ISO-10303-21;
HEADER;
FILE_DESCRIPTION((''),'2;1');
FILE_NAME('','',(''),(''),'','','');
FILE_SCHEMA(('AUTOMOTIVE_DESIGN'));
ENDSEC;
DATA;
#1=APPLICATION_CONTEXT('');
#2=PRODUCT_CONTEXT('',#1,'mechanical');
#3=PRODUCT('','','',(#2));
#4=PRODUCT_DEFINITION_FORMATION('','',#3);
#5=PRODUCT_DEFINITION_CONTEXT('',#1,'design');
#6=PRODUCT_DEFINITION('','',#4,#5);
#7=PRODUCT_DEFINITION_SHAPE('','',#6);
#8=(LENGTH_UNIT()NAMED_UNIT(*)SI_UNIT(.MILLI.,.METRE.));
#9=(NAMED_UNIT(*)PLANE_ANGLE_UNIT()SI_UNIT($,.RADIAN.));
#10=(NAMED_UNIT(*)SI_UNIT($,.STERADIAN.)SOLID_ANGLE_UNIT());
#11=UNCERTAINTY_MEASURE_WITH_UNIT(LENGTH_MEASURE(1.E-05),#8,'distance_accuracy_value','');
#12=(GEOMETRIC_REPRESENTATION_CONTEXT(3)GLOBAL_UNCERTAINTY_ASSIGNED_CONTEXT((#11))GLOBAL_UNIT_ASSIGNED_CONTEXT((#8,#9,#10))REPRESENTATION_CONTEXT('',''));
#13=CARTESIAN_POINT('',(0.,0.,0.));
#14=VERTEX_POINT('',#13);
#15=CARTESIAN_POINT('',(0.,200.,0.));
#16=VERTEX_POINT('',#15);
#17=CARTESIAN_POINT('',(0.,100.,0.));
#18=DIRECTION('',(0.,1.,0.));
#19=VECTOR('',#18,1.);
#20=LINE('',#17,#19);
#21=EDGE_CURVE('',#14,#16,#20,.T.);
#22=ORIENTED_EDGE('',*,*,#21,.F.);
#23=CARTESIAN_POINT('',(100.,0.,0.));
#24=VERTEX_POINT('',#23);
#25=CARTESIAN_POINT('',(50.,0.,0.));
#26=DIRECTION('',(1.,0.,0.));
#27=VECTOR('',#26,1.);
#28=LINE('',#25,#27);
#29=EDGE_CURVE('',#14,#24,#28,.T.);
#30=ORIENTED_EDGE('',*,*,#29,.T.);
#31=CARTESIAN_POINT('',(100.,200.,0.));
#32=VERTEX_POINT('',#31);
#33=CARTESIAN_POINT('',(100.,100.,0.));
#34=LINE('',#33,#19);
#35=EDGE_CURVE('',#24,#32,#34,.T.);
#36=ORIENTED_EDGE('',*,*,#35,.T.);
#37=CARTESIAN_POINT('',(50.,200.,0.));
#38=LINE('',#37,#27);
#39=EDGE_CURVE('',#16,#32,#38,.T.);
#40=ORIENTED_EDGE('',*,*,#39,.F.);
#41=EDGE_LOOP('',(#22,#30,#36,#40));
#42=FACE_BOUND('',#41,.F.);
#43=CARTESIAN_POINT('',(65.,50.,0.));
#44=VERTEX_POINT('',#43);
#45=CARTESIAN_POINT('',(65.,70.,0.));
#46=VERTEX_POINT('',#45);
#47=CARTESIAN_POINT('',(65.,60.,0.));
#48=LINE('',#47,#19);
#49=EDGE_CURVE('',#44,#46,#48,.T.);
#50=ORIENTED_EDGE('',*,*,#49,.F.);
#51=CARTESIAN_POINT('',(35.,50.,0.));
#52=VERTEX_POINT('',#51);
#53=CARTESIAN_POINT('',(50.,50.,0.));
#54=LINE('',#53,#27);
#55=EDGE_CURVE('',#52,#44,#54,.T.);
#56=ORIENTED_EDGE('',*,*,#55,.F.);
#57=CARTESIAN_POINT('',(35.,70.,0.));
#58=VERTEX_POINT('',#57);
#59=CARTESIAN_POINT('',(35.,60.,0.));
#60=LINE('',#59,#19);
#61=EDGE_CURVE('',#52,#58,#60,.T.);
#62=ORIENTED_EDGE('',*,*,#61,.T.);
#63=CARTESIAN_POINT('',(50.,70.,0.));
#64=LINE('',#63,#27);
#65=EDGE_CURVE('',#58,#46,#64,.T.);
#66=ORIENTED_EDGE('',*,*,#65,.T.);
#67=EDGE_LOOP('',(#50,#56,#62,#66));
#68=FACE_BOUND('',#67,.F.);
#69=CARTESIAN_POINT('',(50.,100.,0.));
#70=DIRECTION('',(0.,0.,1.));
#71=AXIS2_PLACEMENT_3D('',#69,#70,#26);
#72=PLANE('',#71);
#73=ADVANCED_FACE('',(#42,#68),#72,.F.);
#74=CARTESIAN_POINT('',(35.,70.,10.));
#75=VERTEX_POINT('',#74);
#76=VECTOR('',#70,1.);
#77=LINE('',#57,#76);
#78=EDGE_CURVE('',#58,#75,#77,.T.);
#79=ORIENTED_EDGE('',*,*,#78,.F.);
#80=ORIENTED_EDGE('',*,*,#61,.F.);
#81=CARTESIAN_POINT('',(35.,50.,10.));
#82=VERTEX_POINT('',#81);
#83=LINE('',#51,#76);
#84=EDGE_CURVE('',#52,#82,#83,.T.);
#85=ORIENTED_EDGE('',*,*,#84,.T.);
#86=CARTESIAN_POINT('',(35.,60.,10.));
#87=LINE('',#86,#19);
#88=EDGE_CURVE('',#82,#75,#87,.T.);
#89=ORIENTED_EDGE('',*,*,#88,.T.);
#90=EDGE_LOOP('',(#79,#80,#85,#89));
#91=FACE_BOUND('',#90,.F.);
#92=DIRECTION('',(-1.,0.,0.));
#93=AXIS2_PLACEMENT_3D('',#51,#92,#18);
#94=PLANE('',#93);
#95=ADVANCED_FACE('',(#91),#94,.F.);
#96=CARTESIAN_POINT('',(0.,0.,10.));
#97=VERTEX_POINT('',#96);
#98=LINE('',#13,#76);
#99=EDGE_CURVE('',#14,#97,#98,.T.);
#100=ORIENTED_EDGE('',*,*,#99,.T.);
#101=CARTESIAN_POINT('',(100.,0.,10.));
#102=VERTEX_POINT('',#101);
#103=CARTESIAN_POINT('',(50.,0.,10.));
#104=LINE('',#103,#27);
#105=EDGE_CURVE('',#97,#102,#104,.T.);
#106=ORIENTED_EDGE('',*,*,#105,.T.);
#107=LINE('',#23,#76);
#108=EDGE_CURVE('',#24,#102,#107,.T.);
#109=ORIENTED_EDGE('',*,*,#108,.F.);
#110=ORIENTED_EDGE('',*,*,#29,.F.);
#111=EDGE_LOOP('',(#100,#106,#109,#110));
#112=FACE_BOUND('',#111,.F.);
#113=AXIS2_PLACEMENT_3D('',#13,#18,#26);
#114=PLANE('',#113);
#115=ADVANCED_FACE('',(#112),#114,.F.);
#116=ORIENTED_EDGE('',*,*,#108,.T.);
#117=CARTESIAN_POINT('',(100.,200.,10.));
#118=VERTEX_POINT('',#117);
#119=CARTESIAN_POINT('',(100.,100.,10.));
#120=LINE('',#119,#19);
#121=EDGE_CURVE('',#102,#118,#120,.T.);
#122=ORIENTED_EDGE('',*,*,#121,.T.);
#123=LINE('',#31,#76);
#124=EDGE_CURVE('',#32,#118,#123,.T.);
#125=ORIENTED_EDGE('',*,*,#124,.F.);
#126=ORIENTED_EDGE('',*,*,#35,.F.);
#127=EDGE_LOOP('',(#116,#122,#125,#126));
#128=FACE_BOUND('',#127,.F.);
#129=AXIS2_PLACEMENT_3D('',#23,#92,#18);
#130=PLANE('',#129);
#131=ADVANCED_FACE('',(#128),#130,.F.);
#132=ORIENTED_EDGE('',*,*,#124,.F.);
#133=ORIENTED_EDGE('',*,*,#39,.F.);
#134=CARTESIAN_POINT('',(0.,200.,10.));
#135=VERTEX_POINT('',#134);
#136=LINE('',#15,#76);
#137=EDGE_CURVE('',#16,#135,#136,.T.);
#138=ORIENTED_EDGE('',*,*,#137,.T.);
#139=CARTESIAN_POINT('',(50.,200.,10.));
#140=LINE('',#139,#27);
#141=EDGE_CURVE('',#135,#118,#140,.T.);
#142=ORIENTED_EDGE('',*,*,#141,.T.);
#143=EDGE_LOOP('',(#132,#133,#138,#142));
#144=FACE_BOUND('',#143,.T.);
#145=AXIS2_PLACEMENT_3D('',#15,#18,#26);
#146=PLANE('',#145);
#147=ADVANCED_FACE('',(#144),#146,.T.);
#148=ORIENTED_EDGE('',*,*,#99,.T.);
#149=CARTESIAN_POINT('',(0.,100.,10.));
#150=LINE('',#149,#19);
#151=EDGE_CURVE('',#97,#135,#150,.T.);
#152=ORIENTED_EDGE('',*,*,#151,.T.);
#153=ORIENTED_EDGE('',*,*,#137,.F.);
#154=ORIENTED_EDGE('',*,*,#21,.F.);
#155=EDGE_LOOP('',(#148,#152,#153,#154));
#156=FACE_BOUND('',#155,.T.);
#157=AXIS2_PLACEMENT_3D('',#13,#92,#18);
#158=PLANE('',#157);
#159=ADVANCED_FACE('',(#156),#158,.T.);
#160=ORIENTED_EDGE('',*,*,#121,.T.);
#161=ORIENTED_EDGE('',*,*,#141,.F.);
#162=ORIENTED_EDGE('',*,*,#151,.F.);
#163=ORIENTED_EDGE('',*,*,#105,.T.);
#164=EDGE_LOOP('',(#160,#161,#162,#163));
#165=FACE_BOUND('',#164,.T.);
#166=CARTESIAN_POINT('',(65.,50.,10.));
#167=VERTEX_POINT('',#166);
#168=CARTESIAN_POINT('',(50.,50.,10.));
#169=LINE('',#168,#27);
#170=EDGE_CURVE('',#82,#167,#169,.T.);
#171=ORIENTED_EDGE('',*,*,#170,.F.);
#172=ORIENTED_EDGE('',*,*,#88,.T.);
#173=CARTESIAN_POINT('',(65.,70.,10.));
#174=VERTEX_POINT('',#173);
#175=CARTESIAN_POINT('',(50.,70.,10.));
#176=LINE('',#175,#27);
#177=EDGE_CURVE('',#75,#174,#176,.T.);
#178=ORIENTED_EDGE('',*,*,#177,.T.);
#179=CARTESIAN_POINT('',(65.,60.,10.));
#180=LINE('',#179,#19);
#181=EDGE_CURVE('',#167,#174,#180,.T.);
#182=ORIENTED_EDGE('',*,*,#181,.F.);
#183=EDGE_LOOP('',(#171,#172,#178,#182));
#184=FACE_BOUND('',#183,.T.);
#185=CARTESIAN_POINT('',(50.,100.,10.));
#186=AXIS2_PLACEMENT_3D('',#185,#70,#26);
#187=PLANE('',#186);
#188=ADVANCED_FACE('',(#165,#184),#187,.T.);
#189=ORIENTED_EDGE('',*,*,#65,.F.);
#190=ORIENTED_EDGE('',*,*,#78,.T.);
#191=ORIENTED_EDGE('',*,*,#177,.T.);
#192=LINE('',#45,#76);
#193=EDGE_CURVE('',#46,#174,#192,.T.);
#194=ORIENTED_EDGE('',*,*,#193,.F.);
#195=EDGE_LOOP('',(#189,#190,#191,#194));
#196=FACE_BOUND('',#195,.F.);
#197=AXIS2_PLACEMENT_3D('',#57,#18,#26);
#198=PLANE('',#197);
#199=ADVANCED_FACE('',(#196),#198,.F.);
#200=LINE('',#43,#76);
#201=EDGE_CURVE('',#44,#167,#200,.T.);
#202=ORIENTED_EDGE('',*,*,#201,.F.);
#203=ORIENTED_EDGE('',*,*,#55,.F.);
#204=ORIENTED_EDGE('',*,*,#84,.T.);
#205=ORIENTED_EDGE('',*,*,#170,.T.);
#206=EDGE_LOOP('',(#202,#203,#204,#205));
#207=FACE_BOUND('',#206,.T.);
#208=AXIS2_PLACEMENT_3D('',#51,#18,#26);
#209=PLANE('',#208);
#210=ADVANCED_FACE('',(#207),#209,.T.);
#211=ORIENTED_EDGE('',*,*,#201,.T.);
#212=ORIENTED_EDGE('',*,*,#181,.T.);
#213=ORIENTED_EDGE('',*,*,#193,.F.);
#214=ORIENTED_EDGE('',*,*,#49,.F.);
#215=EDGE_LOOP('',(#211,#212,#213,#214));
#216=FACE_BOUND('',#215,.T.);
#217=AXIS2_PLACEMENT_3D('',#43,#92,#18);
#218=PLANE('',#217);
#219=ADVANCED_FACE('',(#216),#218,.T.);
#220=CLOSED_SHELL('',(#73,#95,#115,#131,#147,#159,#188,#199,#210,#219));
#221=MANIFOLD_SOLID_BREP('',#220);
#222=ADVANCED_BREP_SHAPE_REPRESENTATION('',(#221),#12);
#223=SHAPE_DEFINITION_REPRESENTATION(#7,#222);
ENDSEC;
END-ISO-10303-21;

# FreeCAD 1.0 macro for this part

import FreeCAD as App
import Part
import Sketcher

V = App.Vector


def add_polygon(sketch, points):
    """Adds a closed chain of lines whose ends are joined by coincident constraints."""
    first, n = sketch.GeometryCount, len(points)
    for a, b in zip(points, points[1:] + points[:1]):
        sketch.addGeometry(Part.LineSegment(App.Vector(*a, 0), App.Vector(*b, 0)), False)
    for i in range(n):
        sketch.addConstraint(Sketcher.Constraint("Coincident", first + i, 2, first + (i + 1) % n, 1))

doc = App.newDocument("Part")
params = doc.addObject("Spreadsheet::Sheet", "Params")
for row, (alias, value) in enumerate([
    ("sketch1_width", "100 mm"),
    ("sketch1_width2", "30 mm"),
    ("sketch1_height", "200 mm"),
    ("sketch1_height2", "20 mm"),
    ("pad1_length", "10 mm"),
], start=1):
    params.set(f"A{row}", alias)
    params.set(f"B{row}", "=" + value)
    params.setAlias(f"B{row}", alias)

body = doc.addObject("PartDesign::Body", "Body")

# Sketch on XY plane
sketch1 = body.newObject("Sketcher::SketchObject", "Sketch")
sketch1.AttachmentSupport = (doc.getObject("XY_Plane"), [""])
sketch1.MapMode = "FlatFace"
add_polygon(sketch1, [(0, 200), (0, 0), (100, 0), (100, 200)])  # lines 0-3
add_polygon(sketch1, [(65, 50), (35, 50), (35, 70), (65, 70)])  # lines 4-7
sketch1.addConstraint([
    Sketcher.Constraint("Vertical", 0),
    Sketcher.Constraint("Horizontal", 1),
    Sketcher.Constraint("Vertical", 2),
    Sketcher.Constraint("Horizontal", 3),
    Sketcher.Constraint("Horizontal", 4),
    Sketcher.Constraint("Vertical", 5),
    Sketcher.Constraint("Horizontal", 6),
    Sketcher.Constraint("Vertical", 7),
    Sketcher.Constraint("Coincident", 0, 2, -1, 1),
    Sketcher.Constraint("DistanceX", 1, 1, 1, 2, 100.0),
    Sketcher.Constraint("DistanceX", 4, 2, 4, 1, 30.0),
    Sketcher.Constraint("DistanceY", 0, 2, 0, 1, 200.0),
    Sketcher.Constraint("DistanceY", 5, 1, 5, 2, 20.0),
    Sketcher.Constraint("DistanceX", -1, 1, 4, 2, 35.0),
    Sketcher.Constraint("DistanceY", -1, 1, 4, 2, 50.0),
])
sketch1.setExpression("Constraints[17]", "Params.sketch1_width")
sketch1.setExpression("Constraints[18]", "Params.sketch1_width2")
sketch1.setExpression("Constraints[19]", "Params.sketch1_height")
sketch1.setExpression("Constraints[20]", "Params.sketch1_height2")
pad1 = body.newObject("PartDesign::Pad", "Pad")
pad1.Profile = sketch1
pad1.setExpression("Length", "Params.pad1_length")

doc.recompute()
